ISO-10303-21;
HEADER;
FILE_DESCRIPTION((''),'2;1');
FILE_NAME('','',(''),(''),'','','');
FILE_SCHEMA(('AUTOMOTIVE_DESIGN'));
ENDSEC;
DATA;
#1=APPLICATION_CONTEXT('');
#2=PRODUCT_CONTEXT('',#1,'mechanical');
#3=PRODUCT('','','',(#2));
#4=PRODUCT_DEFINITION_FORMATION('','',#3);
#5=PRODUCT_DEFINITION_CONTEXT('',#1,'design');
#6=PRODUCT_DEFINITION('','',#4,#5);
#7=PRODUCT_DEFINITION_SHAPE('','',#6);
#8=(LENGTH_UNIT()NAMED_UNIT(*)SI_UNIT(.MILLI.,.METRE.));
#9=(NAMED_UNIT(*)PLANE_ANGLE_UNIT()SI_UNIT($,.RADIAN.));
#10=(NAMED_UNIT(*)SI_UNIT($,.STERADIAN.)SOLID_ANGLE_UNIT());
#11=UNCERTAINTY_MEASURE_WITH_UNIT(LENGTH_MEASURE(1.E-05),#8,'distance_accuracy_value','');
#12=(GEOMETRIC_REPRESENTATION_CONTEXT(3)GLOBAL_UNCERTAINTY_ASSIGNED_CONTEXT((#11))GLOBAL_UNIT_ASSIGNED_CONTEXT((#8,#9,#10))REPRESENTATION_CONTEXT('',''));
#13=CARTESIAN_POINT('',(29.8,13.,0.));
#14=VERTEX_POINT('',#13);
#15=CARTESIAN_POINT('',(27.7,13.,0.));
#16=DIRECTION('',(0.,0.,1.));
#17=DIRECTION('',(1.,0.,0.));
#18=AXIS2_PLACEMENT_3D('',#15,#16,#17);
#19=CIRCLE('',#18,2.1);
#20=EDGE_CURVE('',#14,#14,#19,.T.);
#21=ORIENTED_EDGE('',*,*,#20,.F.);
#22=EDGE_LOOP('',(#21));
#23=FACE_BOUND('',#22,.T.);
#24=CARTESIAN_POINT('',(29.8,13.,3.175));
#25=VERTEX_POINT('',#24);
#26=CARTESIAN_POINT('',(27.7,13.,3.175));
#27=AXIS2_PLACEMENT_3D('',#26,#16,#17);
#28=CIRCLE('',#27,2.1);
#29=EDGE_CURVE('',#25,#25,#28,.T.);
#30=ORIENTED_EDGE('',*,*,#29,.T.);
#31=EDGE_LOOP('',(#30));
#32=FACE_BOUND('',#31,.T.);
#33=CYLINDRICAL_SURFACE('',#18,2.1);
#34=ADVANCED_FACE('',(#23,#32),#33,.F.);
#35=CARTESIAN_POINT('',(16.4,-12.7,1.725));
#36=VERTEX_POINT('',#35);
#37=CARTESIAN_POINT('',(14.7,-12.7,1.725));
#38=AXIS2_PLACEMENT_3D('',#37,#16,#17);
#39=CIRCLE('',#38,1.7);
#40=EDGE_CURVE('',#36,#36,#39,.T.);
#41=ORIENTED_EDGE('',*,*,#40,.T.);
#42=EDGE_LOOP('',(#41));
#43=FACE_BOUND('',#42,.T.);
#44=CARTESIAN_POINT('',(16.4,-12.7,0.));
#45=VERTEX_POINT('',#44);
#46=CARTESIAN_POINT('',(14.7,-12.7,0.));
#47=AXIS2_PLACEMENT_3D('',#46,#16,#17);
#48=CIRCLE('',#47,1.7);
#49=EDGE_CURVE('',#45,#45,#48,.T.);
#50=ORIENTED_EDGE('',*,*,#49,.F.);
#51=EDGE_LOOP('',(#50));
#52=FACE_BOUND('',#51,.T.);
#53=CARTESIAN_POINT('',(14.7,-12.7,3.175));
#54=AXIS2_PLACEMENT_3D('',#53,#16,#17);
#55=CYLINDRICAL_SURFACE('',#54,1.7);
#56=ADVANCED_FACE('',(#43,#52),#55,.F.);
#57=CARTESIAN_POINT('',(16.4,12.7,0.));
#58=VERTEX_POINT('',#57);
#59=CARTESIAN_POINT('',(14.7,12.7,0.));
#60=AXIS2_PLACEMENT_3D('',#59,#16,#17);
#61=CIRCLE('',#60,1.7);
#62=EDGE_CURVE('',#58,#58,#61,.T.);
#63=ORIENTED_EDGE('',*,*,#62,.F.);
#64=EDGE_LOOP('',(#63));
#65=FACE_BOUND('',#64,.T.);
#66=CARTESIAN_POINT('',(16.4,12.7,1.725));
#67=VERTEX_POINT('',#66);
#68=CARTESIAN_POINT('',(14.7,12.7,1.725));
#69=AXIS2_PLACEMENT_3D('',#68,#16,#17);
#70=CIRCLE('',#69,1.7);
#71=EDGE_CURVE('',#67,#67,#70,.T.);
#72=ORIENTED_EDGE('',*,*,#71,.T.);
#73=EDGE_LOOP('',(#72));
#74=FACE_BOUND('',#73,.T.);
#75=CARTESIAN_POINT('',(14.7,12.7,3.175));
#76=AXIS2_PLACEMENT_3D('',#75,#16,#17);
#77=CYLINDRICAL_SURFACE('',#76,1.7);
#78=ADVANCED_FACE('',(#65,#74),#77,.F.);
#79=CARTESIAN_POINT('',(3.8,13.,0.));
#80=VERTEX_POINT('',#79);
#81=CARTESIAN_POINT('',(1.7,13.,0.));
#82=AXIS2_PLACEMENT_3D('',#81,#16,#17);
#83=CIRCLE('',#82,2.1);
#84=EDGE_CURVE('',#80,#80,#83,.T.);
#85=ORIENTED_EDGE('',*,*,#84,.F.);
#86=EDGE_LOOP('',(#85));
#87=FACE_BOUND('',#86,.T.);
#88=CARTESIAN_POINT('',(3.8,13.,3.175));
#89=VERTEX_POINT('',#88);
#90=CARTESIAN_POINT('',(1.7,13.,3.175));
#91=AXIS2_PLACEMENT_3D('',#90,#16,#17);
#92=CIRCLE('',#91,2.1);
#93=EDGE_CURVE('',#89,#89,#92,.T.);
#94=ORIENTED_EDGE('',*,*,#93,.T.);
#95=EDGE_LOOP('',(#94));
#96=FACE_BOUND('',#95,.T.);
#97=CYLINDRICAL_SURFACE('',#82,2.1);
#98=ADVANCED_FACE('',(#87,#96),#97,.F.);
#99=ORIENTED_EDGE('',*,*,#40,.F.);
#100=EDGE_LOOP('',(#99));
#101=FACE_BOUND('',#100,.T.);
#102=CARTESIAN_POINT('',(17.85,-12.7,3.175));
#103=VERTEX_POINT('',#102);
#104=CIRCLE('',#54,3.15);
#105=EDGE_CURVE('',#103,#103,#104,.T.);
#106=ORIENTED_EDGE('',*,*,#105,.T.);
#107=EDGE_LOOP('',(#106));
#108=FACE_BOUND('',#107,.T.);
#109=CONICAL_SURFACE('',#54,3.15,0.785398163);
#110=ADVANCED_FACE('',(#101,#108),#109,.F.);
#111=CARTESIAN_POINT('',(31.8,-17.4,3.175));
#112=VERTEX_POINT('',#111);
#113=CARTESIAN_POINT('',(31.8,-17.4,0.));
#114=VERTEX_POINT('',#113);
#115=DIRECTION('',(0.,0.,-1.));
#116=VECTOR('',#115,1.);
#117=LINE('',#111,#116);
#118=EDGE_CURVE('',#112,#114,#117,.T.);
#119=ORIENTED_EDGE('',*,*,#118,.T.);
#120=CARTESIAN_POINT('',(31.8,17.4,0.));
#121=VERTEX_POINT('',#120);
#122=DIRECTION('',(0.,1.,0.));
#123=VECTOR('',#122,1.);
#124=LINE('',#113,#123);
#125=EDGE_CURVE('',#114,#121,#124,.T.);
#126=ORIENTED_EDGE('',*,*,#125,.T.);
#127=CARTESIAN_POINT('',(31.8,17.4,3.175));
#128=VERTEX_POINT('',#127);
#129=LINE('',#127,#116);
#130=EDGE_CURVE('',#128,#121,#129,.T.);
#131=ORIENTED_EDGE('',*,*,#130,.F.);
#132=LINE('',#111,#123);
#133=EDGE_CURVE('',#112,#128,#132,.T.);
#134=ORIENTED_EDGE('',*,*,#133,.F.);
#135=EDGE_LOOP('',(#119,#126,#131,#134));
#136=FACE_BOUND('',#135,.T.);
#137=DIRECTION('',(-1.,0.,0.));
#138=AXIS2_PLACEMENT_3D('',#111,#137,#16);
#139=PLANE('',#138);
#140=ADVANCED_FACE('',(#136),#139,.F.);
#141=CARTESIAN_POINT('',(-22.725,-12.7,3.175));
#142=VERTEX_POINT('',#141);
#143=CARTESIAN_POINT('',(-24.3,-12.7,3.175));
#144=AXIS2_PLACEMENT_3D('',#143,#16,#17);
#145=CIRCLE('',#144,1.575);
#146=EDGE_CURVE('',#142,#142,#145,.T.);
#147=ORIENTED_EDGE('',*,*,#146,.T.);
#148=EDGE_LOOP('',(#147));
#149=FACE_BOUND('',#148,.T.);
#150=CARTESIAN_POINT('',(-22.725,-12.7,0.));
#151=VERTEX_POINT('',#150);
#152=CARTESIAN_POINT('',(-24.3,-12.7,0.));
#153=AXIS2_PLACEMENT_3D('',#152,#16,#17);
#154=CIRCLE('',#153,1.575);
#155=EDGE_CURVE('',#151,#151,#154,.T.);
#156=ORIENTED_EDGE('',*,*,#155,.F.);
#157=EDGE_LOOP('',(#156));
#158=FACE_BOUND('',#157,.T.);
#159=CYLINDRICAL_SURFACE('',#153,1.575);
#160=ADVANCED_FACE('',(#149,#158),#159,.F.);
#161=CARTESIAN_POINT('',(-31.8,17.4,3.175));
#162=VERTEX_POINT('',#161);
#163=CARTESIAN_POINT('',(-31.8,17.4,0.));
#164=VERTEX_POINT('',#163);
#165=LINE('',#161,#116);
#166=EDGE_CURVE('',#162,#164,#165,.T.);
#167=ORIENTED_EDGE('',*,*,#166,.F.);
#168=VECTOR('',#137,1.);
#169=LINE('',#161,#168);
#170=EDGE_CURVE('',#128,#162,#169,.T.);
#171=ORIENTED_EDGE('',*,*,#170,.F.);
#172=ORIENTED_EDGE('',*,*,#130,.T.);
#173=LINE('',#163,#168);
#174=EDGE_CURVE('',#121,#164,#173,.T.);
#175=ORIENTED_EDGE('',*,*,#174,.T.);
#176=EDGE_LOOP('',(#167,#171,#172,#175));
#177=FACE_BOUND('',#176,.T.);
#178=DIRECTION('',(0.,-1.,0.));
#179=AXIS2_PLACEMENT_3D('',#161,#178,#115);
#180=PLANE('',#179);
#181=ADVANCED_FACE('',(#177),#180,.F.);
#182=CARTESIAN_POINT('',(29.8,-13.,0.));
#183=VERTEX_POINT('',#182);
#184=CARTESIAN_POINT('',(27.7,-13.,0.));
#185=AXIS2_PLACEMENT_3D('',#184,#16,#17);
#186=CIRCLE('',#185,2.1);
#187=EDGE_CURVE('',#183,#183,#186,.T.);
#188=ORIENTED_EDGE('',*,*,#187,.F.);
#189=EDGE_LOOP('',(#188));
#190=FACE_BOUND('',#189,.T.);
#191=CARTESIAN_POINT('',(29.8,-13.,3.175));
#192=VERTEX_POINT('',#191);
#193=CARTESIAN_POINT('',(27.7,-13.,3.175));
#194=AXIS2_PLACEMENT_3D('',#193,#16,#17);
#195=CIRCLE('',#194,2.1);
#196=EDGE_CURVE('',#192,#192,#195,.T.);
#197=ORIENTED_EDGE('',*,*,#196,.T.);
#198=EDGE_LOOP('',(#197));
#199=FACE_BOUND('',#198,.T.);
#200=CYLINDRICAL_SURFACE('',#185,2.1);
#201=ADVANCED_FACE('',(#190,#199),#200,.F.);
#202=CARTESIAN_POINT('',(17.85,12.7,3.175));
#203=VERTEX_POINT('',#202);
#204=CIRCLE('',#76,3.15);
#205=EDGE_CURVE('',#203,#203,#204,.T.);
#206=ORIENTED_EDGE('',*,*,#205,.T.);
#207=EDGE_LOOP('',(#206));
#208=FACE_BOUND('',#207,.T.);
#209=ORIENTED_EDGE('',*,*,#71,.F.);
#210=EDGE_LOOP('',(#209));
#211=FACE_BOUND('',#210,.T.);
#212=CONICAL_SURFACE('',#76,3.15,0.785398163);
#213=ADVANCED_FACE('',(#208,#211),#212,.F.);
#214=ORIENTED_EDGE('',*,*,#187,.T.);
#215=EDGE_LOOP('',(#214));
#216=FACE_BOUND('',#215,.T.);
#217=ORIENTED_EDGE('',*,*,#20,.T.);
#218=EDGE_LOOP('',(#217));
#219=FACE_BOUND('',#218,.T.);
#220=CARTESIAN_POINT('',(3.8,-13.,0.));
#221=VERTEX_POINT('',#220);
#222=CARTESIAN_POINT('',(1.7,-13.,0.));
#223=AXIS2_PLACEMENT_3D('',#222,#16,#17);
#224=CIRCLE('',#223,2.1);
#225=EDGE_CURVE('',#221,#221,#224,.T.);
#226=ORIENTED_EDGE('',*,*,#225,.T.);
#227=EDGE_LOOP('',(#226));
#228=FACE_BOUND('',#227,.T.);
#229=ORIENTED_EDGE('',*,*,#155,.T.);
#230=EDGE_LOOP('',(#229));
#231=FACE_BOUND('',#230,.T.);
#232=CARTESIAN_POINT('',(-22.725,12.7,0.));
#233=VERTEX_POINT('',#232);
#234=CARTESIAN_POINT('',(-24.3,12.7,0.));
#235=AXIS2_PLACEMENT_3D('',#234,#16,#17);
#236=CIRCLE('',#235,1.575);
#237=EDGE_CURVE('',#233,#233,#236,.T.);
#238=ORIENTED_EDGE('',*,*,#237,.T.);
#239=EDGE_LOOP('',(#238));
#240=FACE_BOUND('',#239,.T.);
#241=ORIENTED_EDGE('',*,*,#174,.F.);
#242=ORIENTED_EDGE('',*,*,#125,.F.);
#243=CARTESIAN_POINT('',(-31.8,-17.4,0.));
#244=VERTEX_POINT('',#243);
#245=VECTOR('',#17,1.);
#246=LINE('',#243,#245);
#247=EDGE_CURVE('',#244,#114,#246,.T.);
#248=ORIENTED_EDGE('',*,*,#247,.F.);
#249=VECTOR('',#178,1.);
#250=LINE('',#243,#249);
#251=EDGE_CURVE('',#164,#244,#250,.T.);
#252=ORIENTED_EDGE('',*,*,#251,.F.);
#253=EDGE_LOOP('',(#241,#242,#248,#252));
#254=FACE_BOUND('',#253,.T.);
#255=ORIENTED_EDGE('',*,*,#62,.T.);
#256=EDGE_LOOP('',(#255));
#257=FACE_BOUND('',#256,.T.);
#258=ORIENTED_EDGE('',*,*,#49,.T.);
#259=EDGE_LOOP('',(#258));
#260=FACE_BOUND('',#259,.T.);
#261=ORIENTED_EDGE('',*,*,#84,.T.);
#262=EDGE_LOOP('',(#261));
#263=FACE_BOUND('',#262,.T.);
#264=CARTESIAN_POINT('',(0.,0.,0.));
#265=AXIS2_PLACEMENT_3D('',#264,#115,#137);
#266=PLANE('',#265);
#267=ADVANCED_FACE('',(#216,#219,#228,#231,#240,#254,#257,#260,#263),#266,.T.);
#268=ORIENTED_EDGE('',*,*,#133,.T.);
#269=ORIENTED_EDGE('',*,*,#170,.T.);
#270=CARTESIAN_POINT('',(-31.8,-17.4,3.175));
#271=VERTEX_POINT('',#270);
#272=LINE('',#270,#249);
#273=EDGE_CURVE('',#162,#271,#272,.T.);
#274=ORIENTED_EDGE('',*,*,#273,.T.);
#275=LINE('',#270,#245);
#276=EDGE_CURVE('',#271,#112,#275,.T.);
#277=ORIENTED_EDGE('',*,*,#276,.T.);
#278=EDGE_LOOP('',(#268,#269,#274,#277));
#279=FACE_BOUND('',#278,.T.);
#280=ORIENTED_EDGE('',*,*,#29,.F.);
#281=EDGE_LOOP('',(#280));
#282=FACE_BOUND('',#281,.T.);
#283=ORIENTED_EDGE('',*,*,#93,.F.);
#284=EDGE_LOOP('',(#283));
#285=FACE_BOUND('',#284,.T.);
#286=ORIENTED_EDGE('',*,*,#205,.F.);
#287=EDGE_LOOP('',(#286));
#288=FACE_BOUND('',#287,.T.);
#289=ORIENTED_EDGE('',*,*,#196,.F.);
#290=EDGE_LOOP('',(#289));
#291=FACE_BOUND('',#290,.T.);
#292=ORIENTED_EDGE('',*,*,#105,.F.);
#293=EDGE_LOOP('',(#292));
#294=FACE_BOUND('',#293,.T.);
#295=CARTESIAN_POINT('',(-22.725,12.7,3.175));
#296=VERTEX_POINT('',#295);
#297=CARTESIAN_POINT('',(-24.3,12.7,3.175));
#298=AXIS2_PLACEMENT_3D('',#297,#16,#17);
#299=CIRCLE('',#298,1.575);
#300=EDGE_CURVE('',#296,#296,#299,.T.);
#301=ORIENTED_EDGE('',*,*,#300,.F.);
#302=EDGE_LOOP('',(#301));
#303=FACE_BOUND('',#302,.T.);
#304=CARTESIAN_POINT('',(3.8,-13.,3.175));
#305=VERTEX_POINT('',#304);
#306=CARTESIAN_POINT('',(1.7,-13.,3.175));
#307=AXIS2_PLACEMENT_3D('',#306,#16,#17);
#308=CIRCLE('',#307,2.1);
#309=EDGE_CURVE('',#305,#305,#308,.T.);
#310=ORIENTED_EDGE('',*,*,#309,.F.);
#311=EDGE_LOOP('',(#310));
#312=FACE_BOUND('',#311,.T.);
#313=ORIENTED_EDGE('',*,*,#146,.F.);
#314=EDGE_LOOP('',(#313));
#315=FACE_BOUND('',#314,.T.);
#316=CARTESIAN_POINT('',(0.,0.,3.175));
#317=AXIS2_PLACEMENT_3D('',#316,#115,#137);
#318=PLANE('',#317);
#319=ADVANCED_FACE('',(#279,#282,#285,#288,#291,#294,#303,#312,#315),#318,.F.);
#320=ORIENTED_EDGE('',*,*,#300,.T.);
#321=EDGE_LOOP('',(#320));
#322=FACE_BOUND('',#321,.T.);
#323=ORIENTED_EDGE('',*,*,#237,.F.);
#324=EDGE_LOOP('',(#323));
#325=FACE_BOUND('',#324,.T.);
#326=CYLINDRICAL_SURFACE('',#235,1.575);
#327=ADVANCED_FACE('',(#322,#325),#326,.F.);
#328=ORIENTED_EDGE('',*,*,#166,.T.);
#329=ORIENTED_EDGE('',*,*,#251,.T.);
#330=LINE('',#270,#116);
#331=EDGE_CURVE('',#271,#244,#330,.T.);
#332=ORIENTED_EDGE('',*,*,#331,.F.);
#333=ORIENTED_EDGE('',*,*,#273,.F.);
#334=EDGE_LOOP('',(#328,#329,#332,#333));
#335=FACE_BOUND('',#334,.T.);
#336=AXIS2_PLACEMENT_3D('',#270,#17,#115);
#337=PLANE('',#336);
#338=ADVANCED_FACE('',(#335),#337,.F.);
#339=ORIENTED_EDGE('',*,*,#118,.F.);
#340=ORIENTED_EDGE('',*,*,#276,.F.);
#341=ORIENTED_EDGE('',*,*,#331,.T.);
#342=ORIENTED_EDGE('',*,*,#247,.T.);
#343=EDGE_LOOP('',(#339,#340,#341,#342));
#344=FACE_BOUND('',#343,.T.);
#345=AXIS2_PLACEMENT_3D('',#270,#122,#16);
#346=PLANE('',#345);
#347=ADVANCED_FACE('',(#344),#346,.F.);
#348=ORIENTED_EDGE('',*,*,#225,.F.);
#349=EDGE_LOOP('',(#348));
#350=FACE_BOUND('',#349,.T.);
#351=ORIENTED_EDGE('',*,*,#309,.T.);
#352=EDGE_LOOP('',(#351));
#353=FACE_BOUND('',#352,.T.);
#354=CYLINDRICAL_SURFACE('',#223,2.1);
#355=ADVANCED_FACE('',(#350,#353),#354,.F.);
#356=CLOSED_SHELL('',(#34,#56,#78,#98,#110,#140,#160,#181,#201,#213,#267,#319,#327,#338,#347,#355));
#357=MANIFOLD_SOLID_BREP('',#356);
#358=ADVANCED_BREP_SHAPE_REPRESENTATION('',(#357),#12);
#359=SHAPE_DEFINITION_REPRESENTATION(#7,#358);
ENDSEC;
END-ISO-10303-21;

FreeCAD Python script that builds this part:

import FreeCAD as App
import Part
import Sketcher
Q = App.Units.Quantity


def add_polygon(sketch, points):
    """Adds a closed chain of lines whose ends are joined by coincident constraints."""
    first, n = sketch.GeometryCount, len(points)
    for a, b in zip(points, points[1:] + points[:1]):
        sketch.addGeometry(Part.LineSegment(App.Vector(*a, 0), App.Vector(*b, 0)), False)
    for i in range(n):
        sketch.addConstraint(Sketcher.Constraint("Coincident", first + i, 2, first + (i + 1) % n, 1))

doc = App.newDocument("Part")
body = doc.addObject("PartDesign::Body", "Body")

sketch1 = body.newObject("Sketcher::SketchObject", "Sketch")
sketch1.AttachmentSupport = (doc.getObject("XY_Plane"), [""])
sketch1.MapMode = "FlatFace"
add_polygon(sketch1, [(-32, 17), (-32, -17), (32, -17), (32, 17)])
sketch1.addConstraint(Sketcher.Constraint("Vertical", 0))
sketch1.addConstraint(Sketcher.Constraint("Horizontal", 1))
sketch1.addConstraint(Sketcher.Constraint("Vertical", 2))
sketch1.addConstraint(Sketcher.Constraint("Horizontal", 3))
sketch1.addConstraint(Sketcher.Constraint("Symmetric", 0, 2, 2, 2, -1, 1))
sketch1.addConstraint(Sketcher.Constraint("DistanceX", 1, 1, 1, 2, Q("63.6 mm")))
sketch1.addConstraint(Sketcher.Constraint("DistanceY", 0, 2, 0, 1, Q("34.8 mm")))
pad1 = body.newObject("PartDesign::Pad", "Pad")
pad1.Profile = sketch1
pad1.Length = 3.175

sketch2 = body.newObject("Sketcher::SketchObject", "Sketch001")
sketch2.AttachmentSupport = (doc.getObject("XY_Plane"), [""])
sketch2.MapMode = "FlatFace"
sketch2.AttachmentOffset = App.Placement(App.Vector(0, 0, 3.175), App.Rotation())
sketch2.addGeometry(Part.Circle(App.Vector(-24.3, 12.7, 0), App.Vector(0, 0, 1), 1.6), False)
sketch2.addGeometry(Part.Circle(App.Vector(-24.3, -12.7, 0), App.Vector(0, 0, 1), 1.6), False)
sketch2.addConstraint(Sketcher.Constraint("Equal", 0, 1))
sketch2.addConstraint(Sketcher.Constraint("Symmetric", 0, 3, 1, 3, -1))
sketch2.addConstraint(Sketcher.Constraint("Diameter", 0, Q("3.15 mm")))
sketch2.addConstraint(Sketcher.Constraint("DistanceX", 0, 3, -1, 1, Q("24.3 mm")))
sketch2.addConstraint(Sketcher.Constraint("DistanceY", -1, 1, 0, 3, Q("12.7 mm")))
pocket1 = body.newObject("PartDesign::Pocket", "Pocket")
pocket1.Profile = sketch2
pocket1.Type = "ThroughAll"

sketch3 = body.newObject("Sketcher::SketchObject", "Sketch002")
sketch3.AttachmentSupport = (doc.getObject("XY_Plane"), [""])
sketch3.MapMode = "FlatFace"
sketch3.AttachmentOffset = App.Placement(App.Vector(0, 0, 3.175), App.Rotation())
sketch3.addGeometry(Part.Circle(App.Vector(14.7, 12.7, 0), App.Vector(0, 0, 1), 1.7), False)
sketch3.addGeometry(Part.Circle(App.Vector(14.7, -12.7, 0), App.Vector(0, 0, 1), 1.7), False)
sketch3.addConstraint(Sketcher.Constraint("Equal", 0, 1))
sketch3.addConstraint(Sketcher.Constraint("Symmetric", 0, 3, 1, 3, -1))
sketch3.addConstraint(Sketcher.Constraint("Diameter", 0, Q("3.4 mm")))
sketch3.addConstraint(Sketcher.Constraint("DistanceX", -1, 1, 0, 3, Q("14.7 mm")))
sketch3.addConstraint(Sketcher.Constraint("DistanceY", -1, 1, 0, 3, Q("12.7 mm")))
doc.recompute()
hole = body.newObject("PartDesign::Hole", "Hole")
hole.Profile = sketch3
hole.ThreadType = "None"
hole.Diameter = 3.4
hole.DepthType = "ThroughAll"
hole.HoleCutType = "Countersink"
hole.HoleCutDiameter = 6.3
hole.HoleCutCountersinkAngle = 90

sketch4 = body.newObject("Sketcher::SketchObject", "Sketch003")
sketch4.AttachmentSupport = (doc.getObject("XY_Plane"), [""])
sketch4.MapMode = "FlatFace"
sketch4.AttachmentOffset = App.Placement(App.Vector(0, 0, 3.175), App.Rotation())
sketch4.addGeometry(Part.Circle(App.Vector(1.7, 13, 0), App.Vector(0, 0, 1), 2.1), False)
sketch4.addGeometry(Part.Circle(App.Vector(27.7, 13, 0), App.Vector(0, 0, 1), 2.1), False)
sketch4.addGeometry(Part.Circle(App.Vector(27.7, -13, 0), App.Vector(0, 0, 1), 2.1), False)
sketch4.addGeometry(Part.Circle(App.Vector(1.7, -13, 0), App.Vector(0, 0, 1), 2.1), False)
sketch4.addConstraint(Sketcher.Constraint("Equal", 0, 1))
sketch4.addConstraint(Sketcher.Constraint("Equal", 1, 2))
sketch4.addConstraint(Sketcher.Constraint("Equal", 2, 3))
sketch4.addConstraint(Sketcher.Constraint("Symmetric", 1, 3, 2, 3, -1))
sketch4.addConstraint(Sketcher.Constraint("Symmetric", 0, 3, 3, 3, -1))
sketch4.addConstraint(Sketcher.Constraint("Horizontal", 0, 3, 1, 3))
sketch4.addConstraint(Sketcher.Constraint("Diameter", 0, Q("4.2 mm")))
sketch4.addConstraint(Sketcher.Constraint("DistanceY", -1, 1, 0, 3, Q("13 mm")))
sketch4.addConstraint(Sketcher.Constraint("DistanceX", 0, 3, 1, 3, Q("26 mm")))
sketch4.addConstraint(Sketcher.Constraint("DistanceX", -1, 1, 0, 3, Q("1.7 mm")))
pocket2 = body.newObject("PartDesign::Pocket", "Pocket001")
pocket2.Profile = sketch4
pocket2.Type = "ThroughAll"

doc.recompute()
